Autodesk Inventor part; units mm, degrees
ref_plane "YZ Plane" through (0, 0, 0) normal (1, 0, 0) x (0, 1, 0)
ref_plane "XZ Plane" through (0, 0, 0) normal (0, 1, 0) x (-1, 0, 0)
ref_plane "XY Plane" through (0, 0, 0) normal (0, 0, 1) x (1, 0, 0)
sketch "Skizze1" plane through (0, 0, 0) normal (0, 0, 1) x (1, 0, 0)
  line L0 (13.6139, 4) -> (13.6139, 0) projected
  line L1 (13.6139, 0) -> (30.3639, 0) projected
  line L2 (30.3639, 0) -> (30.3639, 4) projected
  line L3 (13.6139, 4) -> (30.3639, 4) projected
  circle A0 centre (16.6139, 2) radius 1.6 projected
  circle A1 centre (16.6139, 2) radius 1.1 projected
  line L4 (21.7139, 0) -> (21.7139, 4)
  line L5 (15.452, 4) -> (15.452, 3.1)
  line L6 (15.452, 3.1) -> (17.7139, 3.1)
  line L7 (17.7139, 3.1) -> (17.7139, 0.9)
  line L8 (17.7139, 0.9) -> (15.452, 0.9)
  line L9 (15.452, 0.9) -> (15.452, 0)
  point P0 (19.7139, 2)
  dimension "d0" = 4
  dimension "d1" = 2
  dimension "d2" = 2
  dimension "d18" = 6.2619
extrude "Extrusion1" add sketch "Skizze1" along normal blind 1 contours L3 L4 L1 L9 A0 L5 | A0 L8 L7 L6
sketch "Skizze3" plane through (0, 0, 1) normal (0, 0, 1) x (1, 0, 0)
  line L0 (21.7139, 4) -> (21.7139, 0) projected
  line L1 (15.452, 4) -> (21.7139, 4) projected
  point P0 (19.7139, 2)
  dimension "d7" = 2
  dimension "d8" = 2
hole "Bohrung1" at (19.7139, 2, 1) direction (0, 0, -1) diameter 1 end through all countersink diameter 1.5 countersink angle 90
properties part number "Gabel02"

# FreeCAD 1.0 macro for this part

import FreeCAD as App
import Part
import Sketcher


def add_polygon(sketch, points):
    """Adds a closed chain of lines whose ends are joined by coincident constraints."""
    first, n = sketch.GeometryCount, len(points)
    for a, b in zip(points, points[1:] + points[:1]):
        sketch.addGeometry(Part.LineSegment(App.Vector(*a, 0), App.Vector(*b, 0)), False)
    for i in range(n):
        sketch.addConstraint(Sketcher.Constraint("Coincident", first + i, 2, first + (i + 1) % n, 1))

doc = App.newDocument("Part")
body = doc.addObject("PartDesign::Body", "Body")

sketch1 = body.newObject("Sketcher::SketchObject", "Sketch")
sketch1.AttachmentSupport = (doc.getObject("XY_Plane"), [""])
sketch1.MapMode = "FlatFace"
add_polygon(sketch1, [(21.7, 4), (15.5, 4), (15.5, 3.1), (17.7, 3.1), (17.7, 0.9), (15.5, 0.9), (15.5, 0), (21.7, 0)])
sketch1.addConstraint(Sketcher.Constraint("Horizontal", 0))
sketch1.addConstraint(Sketcher.Constraint("Vertical", 1))
sketch1.addConstraint(Sketcher.Constraint("Horizontal", 2))
sketch1.addConstraint(Sketcher.Constraint("Vertical", 3))
sketch1.addConstraint(Sketcher.Constraint("Horizontal", 4))
sketch1.addConstraint(Sketcher.Constraint("Vertical", 5))
sketch1.addConstraint(Sketcher.Constraint("Horizontal", 6))
sketch1.addConstraint(Sketcher.Constraint("Vertical", 7))
sketch1.addConstraint(Sketcher.Constraint("PointOnObject", 5, 2, -1))
sketch1.addConstraint(Sketcher.Constraint("Vertical", 1, 2, 4, 2))
sketch1.addConstraint(Sketcher.Constraint("Equal", 1, 5))
sketch1.addConstraint(Sketcher.Constraint("DistanceY", 7, 1, 7, 2, 4.0))
sketch1.addConstraint(Sketcher.Constraint("DistanceX", 3, 2, 6, 2, 4.0))
sketch1.addConstraint(Sketcher.Constraint("DistanceX", 0, 2, 0, 1, 6.262))
sketch1.addConstraint(Sketcher.Constraint("DistanceY", 1, 2, 1, 1, 0.9))
sketch1.addConstraint(Sketcher.Constraint("DistanceX", -1, 1, 0, 2, 15.452))
pad1 = body.newObject("PartDesign::Pad", "Pad")
pad1.Profile = sketch1
pad1.Length = 1

sketch2 = body.newObject("Sketcher::SketchObject", "Sketch001")
sketch2.AttachmentSupport = (doc.getObject("XY_Plane"), [""])
sketch2.MapMode = "FlatFace"
sketch2.AttachmentOffset = App.Placement(App.Vector(0, 0, 1), App.Rotation())
sketch2.addGeometry(Part.Circle(App.Vector(19.7, 2, 0), App.Vector(0, 0, 1), 0.5), False)
sketch2.addConstraint(Sketcher.Constraint("Diameter", 0, 1.0))
sketch2.addConstraint(Sketcher.Constraint("DistanceY", -1, 1, 0, 3, 2.0))
sketch2.addConstraint(Sketcher.Constraint("DistanceX", -1, 1, 0, 3, 19.714))
doc.recompute()
hole = body.newObject("PartDesign::Hole", "Hole")
hole.Profile = sketch2
hole.ThreadType = "None"
hole.Diameter = 1
hole.DepthType = "ThroughAll"
hole.HoleCutType = "Countersink"
hole.HoleCutDiameter = 1.5
hole.HoleCutCountersinkAngle = 90

doc.recompute()
